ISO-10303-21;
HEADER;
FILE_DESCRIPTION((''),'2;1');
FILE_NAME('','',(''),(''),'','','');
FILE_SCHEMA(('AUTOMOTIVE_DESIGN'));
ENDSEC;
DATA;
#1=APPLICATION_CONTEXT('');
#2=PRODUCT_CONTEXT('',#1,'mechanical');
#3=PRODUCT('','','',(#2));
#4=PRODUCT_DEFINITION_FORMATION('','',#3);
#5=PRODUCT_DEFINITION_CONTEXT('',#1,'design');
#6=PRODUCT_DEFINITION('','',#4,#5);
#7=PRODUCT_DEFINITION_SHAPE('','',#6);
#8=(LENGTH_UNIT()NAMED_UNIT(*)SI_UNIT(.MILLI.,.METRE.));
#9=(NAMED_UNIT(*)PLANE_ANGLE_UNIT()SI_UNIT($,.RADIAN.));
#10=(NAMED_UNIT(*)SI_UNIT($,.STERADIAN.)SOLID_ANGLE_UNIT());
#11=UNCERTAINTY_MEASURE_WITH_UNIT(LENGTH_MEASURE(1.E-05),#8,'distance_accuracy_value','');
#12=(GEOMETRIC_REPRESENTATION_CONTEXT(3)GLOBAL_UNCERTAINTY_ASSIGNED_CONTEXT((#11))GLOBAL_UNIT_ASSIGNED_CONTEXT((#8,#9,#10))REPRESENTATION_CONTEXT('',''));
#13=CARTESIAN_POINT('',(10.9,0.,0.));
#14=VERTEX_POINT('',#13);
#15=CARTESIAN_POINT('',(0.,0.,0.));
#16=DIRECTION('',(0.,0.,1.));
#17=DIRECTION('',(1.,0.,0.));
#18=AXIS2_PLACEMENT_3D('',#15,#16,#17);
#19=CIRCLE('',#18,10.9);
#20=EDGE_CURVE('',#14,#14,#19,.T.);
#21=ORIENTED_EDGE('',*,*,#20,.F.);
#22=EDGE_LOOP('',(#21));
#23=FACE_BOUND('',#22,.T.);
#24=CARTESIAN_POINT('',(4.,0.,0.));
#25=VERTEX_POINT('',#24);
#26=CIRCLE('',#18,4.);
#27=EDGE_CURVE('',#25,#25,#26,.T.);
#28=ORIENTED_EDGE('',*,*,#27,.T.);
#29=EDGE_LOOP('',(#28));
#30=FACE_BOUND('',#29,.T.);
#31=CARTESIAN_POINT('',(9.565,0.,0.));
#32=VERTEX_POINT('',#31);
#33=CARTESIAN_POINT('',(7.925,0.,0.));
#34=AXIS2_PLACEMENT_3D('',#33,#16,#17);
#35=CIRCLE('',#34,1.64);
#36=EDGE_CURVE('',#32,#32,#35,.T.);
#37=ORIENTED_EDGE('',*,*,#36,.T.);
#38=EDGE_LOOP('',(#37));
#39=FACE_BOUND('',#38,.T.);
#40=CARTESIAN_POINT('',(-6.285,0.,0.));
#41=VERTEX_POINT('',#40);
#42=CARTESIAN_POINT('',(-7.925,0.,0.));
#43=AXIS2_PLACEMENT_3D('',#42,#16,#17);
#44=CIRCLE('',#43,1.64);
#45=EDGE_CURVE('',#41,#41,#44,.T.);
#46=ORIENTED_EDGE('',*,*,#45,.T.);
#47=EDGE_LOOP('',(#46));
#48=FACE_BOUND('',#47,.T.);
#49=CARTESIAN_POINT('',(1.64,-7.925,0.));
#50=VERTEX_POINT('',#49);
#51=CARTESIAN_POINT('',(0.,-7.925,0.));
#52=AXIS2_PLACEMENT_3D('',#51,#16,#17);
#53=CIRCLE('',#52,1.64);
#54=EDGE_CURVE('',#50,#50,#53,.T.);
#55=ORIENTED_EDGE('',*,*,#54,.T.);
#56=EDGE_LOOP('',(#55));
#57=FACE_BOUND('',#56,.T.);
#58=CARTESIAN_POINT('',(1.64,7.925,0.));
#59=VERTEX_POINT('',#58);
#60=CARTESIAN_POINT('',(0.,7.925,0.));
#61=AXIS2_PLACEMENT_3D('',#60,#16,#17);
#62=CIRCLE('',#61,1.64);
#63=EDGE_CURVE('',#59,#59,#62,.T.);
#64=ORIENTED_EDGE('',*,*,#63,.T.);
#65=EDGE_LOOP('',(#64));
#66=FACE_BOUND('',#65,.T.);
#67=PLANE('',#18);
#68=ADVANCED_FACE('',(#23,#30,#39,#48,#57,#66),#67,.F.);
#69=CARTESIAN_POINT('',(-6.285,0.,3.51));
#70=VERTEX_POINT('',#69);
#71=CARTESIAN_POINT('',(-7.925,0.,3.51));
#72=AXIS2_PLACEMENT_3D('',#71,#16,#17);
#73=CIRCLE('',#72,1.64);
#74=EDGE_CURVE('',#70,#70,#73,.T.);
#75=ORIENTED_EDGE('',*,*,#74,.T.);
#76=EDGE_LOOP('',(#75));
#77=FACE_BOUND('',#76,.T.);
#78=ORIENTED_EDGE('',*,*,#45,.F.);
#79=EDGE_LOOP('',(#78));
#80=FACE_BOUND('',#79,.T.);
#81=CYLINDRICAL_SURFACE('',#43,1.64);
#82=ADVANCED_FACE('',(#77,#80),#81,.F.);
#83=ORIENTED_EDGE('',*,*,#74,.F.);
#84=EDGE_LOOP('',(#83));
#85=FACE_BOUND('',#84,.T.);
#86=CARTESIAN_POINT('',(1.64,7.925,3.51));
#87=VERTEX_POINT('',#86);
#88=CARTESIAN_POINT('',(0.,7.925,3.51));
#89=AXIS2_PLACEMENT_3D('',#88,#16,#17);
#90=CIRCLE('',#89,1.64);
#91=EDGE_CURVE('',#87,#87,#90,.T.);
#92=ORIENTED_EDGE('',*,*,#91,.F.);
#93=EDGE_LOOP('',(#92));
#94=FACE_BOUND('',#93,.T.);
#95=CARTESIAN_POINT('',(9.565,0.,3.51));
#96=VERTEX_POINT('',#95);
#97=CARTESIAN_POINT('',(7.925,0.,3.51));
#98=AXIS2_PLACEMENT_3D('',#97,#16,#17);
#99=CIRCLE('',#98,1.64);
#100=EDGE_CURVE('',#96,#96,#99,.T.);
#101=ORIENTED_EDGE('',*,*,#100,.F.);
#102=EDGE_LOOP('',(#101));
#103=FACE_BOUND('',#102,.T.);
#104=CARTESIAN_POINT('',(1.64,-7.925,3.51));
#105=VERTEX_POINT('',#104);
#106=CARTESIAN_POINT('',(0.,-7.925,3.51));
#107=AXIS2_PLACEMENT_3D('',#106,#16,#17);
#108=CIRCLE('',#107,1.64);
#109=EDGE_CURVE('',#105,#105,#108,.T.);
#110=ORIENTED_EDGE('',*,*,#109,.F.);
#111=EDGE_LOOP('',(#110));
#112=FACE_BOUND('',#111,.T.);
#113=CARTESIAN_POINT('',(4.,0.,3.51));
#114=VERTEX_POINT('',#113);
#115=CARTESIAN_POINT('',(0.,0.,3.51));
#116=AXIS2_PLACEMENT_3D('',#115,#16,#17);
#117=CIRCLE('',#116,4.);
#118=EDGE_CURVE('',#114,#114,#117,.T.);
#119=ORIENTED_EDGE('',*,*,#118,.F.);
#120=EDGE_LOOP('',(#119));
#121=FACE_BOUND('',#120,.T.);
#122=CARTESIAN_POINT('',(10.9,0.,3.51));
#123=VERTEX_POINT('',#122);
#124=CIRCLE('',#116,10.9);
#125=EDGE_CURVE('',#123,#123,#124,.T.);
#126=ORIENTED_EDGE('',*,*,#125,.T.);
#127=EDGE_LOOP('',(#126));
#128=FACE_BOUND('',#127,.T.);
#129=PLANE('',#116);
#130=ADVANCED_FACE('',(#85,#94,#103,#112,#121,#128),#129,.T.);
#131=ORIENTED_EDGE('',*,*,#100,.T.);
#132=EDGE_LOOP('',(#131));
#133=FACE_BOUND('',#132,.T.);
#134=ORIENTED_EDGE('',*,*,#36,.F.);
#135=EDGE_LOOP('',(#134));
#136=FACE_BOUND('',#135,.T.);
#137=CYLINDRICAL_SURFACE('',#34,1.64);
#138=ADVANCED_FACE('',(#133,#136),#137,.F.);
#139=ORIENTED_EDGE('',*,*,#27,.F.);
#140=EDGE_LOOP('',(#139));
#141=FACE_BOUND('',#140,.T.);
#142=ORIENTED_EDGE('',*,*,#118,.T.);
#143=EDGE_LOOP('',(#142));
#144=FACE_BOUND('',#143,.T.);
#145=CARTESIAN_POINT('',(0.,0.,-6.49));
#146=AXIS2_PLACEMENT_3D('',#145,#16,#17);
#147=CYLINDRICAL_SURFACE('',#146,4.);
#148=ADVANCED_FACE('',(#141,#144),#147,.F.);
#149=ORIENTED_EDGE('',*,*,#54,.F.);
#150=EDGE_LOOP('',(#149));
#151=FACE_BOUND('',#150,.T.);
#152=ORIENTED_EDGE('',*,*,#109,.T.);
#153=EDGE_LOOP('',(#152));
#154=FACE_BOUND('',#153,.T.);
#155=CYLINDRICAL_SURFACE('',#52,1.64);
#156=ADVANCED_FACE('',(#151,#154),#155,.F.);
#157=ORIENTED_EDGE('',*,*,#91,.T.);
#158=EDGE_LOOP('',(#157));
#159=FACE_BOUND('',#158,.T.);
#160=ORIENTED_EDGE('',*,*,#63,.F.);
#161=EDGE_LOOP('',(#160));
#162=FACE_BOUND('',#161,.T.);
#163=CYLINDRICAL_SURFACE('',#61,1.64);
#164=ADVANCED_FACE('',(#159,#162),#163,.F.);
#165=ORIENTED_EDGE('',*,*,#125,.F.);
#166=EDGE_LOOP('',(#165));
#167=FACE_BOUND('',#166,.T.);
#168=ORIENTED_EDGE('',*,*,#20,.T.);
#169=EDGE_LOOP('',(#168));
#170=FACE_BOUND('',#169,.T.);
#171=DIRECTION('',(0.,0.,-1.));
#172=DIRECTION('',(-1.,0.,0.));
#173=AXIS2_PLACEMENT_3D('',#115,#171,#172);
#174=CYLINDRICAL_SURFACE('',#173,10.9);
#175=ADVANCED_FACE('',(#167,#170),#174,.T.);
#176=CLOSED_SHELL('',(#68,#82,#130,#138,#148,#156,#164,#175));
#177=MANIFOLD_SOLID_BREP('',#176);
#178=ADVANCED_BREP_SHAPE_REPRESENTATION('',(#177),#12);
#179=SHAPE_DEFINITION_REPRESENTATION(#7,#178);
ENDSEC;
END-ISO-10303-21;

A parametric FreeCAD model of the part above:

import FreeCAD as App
import Part
import Sketcher
Q = App.Units.Quantity

doc = App.newDocument("Part")
body = doc.addObject("PartDesign::Body", "Body")

# Sketch on XY plane
sketch1 = body.newObject("Sketcher::SketchObject", "Sketch")
sketch1.AttachmentSupport = (doc.getObject("XY_Plane"), [""])
sketch1.MapMode = "FlatFace"
sketch1.addGeometry(Part.Circle(App.Vector(0, 0, 0), App.Vector(0, 0, 1), 11), False)
sketch1.addConstraint(Sketcher.Constraint("Coincident", 0, 3, -1, 1))
sketch1.addConstraint(Sketcher.Constraint("Diameter", 0, Q("21.8 mm")))
pad1 = body.newObject("PartDesign::Pad", "Pad")
pad1.Profile = sketch1
pad1.Length = 3.51

# Sketch on XY plane
sketch2 = body.newObject("Sketcher::SketchObject", "Sketch001")
sketch2.AttachmentSupport = (doc.getObject("XY_Plane"), [""])
sketch2.MapMode = "FlatFace"
sketch2.AttachmentOffset = App.Placement(App.Vector(0, 0, 3.51), App.Rotation())
sketch2.addGeometry(Part.Circle(App.Vector(7.9, 0, 0), App.Vector(0, 0, 1), 1.6), False)
sketch2.addGeometry(Part.Circle(App.Vector(-7.9, 0, 0), App.Vector(0, 0, 1), 1.6), False)
sketch2.addGeometry(Part.Circle(App.Vector(0, 7.9, 0), App.Vector(0, 0, 1), 1.6), False)
sketch2.addGeometry(Part.Circle(App.Vector(0, -7.9, 0), App.Vector(0, 0, 1), 1.6), False)
sketch2.addConstraint(Sketcher.Constraint("Equal", 0, 1))
sketch2.addConstraint(Sketcher.Constraint("Equal", 1, 2))
sketch2.addConstraint(Sketcher.Constraint("Equal", 2, 3))
sketch2.addConstraint(Sketcher.Constraint("Symmetric", 0, 3, 1, 3, -1, 1))
sketch2.addConstraint(Sketcher.Constraint("Symmetric", 2, 3, 3, 3, -1, 1))
sketch2.addConstraint(Sketcher.Constraint("PointOnObject", 0, 3, -1))
sketch2.addConstraint(Sketcher.Constraint("PointOnObject", 2, 3, -2))
sketch2.addConstraint(Sketcher.Constraint("Diameter", 0, Q("3.28 mm")))
sketch2.addConstraint(Sketcher.Constraint("DistanceX", 1, 3, 0, 3, Q("15.85 mm")))
sketch2.addConstraint(Sketcher.Constraint("DistanceY", 3, 3, 2, 3, Q("15.85 mm")))
pocket1 = body.newObject("PartDesign::Pocket", "Pocket")
pocket1.Profile = sketch2
pocket1.Length = 3.51

# Sketch on XY plane
sketch3 = body.newObject("Sketcher::SketchObject", "Sketch002")
sketch3.AttachmentSupport = (doc.getObject("XY_Plane"), [""])
sketch3.MapMode = "FlatFace"
sketch3.AttachmentOffset = App.Placement(App.Vector(0, 0, 3.51), App.Rotation())
sketch3.addGeometry(Part.Circle(App.Vector(0, 0, 0), App.Vector(0, 0, 1), 4), False)
sketch3.addConstraint(Sketcher.Constraint("Coincident", 0, 3, -1, 1))
sketch3.addConstraint(Sketcher.Constraint("Diameter", 0, Q("8 mm")))
pocket2 = body.newObject("PartDesign::Pocket", "Pocket001")
pocket2.Profile = sketch3
pocket2.Length = 10

doc.recompute()
